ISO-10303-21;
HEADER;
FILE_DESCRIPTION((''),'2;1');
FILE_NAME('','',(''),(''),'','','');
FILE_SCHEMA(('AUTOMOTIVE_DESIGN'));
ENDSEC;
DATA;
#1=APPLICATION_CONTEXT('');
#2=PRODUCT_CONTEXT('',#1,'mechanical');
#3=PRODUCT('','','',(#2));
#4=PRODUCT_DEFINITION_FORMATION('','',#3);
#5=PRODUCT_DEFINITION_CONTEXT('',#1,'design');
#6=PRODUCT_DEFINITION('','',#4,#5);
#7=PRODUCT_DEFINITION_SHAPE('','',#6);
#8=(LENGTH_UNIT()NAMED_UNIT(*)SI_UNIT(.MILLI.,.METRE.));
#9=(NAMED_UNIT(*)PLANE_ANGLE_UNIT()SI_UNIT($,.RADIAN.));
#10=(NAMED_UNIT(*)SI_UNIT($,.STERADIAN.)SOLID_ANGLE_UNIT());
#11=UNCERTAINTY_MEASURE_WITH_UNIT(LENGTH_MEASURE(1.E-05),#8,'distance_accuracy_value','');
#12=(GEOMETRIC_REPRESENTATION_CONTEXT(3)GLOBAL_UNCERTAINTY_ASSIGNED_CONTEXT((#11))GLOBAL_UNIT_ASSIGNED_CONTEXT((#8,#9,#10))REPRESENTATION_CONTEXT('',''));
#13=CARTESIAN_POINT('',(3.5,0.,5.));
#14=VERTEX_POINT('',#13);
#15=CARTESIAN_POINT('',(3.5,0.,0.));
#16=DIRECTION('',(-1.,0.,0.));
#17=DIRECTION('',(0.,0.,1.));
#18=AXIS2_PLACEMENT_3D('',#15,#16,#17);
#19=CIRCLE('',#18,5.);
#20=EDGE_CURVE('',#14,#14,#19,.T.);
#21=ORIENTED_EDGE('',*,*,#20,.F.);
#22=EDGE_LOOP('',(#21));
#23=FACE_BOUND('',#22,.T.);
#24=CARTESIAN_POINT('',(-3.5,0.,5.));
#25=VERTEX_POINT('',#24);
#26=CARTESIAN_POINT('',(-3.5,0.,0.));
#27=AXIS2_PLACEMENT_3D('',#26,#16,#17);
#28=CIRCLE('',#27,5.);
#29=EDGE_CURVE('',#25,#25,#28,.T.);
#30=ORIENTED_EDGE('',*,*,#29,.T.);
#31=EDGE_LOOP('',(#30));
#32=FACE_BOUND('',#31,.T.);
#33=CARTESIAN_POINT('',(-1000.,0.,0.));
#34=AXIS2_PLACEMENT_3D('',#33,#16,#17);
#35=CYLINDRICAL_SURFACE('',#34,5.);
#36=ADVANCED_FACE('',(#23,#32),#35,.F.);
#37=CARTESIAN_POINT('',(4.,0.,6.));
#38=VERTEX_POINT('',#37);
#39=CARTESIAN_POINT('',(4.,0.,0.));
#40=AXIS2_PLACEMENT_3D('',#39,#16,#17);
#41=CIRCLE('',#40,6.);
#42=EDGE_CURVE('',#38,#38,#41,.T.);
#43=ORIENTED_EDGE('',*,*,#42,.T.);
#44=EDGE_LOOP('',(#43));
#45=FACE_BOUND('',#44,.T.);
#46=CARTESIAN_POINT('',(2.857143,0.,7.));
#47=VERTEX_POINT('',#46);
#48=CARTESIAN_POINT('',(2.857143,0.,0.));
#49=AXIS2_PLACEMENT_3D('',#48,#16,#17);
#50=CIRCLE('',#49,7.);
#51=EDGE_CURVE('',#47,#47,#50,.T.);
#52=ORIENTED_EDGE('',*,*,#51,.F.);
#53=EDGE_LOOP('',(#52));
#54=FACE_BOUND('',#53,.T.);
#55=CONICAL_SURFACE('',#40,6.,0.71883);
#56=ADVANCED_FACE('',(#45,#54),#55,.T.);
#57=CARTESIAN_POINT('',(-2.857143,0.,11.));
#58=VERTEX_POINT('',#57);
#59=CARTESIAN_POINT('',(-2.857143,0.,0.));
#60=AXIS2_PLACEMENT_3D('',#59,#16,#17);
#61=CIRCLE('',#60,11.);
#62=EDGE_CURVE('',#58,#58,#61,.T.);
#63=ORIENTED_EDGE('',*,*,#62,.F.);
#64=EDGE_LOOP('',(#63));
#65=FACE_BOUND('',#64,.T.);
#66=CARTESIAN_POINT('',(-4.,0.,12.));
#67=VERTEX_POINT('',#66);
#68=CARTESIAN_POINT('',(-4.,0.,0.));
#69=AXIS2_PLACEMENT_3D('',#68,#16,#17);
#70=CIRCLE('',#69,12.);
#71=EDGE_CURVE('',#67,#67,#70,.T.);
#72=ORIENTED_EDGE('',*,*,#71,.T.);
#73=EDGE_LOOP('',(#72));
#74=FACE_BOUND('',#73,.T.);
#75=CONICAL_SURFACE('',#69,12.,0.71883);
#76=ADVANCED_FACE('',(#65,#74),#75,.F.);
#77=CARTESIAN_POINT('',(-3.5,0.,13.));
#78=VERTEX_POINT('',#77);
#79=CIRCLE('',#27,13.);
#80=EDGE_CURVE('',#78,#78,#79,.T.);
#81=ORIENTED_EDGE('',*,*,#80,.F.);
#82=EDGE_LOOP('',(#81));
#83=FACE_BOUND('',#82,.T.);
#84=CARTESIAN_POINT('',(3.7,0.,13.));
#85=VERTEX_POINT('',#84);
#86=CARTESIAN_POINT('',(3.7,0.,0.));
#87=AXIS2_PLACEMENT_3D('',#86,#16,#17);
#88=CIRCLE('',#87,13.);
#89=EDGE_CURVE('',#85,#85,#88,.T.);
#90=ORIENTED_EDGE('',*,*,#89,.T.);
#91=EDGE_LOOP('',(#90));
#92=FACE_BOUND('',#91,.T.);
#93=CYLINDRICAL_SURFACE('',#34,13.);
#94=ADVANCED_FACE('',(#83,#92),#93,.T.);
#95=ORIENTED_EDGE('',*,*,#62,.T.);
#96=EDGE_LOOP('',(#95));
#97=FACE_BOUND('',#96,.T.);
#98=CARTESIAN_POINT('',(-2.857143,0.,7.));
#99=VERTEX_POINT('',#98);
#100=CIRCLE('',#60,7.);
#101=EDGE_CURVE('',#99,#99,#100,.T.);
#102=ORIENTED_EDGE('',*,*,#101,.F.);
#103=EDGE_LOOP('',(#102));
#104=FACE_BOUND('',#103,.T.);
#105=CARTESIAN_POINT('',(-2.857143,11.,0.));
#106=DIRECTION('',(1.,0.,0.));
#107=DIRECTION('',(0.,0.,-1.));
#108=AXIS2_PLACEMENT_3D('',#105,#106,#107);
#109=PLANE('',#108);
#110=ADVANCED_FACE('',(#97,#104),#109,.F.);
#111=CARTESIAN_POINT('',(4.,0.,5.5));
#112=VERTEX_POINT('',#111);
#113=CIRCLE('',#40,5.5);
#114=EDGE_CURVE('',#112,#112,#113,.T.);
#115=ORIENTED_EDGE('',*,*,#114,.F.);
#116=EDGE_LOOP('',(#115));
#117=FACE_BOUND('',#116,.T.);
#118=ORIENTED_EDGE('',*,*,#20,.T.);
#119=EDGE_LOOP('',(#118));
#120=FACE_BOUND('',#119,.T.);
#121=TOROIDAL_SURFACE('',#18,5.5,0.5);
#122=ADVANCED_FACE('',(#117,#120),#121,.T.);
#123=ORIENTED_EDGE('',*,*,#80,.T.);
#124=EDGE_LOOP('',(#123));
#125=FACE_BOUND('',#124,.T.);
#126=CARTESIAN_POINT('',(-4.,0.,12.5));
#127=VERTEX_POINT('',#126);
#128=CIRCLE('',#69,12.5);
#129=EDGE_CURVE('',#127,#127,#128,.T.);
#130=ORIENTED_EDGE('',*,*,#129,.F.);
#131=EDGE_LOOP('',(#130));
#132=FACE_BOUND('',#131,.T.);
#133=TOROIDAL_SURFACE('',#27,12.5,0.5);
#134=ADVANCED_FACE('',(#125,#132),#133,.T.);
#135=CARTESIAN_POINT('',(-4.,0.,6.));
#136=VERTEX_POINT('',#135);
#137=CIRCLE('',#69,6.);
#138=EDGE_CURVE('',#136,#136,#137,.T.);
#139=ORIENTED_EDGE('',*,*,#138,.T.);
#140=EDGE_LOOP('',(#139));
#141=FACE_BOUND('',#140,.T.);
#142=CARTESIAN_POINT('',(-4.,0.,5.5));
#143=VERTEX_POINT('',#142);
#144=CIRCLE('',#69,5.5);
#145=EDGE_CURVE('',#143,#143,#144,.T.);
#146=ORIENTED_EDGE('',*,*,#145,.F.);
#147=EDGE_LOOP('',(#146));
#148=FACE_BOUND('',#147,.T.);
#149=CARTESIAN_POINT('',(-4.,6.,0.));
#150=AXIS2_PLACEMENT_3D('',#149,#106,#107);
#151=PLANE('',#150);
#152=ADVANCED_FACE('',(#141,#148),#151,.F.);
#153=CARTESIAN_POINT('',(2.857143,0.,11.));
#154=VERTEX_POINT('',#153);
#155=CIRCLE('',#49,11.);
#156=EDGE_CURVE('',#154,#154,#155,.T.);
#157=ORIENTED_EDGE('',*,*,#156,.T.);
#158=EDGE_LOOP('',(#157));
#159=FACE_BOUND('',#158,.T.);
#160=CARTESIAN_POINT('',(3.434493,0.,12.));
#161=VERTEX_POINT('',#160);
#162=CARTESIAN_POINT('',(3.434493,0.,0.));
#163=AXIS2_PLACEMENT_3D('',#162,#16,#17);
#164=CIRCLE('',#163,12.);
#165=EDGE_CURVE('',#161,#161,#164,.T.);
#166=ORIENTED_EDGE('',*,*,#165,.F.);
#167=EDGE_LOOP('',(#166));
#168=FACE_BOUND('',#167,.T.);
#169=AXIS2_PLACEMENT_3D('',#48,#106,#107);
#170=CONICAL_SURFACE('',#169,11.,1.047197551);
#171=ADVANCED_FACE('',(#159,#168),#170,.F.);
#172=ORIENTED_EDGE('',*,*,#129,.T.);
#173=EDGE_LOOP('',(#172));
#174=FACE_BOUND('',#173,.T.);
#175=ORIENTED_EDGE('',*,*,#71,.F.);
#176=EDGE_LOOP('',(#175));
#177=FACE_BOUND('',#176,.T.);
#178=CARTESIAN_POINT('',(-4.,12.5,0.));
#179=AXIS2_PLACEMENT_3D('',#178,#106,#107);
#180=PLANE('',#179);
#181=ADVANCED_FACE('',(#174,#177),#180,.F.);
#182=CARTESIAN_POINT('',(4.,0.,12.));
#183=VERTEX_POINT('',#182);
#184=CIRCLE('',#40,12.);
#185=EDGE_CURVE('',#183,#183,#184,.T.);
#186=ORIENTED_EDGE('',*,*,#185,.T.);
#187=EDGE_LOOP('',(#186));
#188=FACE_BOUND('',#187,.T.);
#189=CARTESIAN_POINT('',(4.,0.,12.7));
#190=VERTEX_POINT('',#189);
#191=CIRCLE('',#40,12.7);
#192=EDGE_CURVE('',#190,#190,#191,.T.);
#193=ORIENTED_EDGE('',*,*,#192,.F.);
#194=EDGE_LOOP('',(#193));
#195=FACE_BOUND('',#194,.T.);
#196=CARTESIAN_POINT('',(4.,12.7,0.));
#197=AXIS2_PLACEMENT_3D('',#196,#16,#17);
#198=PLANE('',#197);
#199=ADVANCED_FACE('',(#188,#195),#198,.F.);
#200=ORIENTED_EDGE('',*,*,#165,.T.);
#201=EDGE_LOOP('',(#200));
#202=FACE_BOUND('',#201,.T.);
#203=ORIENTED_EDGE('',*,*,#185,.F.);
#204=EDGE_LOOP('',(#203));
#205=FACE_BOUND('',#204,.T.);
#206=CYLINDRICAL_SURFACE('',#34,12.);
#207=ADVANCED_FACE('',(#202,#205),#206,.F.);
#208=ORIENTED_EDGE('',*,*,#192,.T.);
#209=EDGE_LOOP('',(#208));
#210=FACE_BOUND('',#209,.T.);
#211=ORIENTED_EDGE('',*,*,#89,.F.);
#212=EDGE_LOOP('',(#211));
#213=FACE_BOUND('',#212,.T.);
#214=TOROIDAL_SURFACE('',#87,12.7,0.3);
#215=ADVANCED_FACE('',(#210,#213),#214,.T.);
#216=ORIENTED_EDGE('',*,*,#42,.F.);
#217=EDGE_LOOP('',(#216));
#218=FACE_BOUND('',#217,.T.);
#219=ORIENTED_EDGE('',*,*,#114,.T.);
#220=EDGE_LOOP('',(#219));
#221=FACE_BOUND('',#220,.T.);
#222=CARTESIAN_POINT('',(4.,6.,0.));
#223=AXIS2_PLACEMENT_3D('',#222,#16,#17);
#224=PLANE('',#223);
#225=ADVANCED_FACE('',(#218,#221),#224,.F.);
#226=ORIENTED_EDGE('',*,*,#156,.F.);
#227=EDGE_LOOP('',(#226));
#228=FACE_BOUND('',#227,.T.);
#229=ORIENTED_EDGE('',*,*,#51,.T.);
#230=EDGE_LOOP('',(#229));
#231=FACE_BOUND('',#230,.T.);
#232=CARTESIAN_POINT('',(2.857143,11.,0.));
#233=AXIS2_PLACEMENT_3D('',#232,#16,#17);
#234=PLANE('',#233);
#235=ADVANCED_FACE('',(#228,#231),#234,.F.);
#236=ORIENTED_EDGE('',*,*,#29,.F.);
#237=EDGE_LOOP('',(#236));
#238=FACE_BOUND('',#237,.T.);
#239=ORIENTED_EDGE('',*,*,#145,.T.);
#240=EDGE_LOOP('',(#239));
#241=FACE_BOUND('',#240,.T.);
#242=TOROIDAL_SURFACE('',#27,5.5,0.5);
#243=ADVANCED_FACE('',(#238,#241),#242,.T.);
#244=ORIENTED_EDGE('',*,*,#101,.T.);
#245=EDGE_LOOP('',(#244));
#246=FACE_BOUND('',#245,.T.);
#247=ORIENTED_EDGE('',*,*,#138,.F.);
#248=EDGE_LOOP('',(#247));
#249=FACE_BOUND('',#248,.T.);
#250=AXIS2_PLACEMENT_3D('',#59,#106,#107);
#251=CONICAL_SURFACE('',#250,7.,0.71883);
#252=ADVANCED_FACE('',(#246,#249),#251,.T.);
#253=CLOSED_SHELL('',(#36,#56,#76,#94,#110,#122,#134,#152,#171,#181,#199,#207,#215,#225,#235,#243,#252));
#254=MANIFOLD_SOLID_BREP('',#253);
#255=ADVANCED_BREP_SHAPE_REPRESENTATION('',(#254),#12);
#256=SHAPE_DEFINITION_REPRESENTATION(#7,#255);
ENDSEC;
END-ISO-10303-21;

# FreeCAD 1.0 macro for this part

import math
import FreeCAD as App
import Part
import Sketcher
Q = App.Units.Quantity

doc = App.newDocument("Part")
params = doc.addObject("Spreadsheet::Sheet", "Params")
for row, (alias, value) in enumerate([
    ("sketch1_radius", "0.5 mm"),
    ("sketch1_radius2", "0.3 mm"),
    ("sketch1_width", "7 mm"),
    ("sketch1_height", "4 mm"),
    ("sketch1_height2", "0.5 mm"),
    ("revolution_angle", "360 deg"),
], start=1):
    params.set(f"A{row}", alias)
    params.set(f"B{row}", "=" + value)
    params.setAlias(f"B{row}", alias)

body = doc.addObject("PartDesign::Body", "Body")

# Sketch on XY plane
sketch1 = doc.addObject("Sketcher::SketchObject", "Sketch")
body.addObject(sketch1)
sketch1.AttachmentSupport = (doc.XY_Plane, [""])
sketch1.MapMode = "FlatFace"
sketch1.addGeometry([
    Part.LineSegment(App.Vector(3.7, 13, 0), App.Vector(-3.5, 13, 0)),  # 0
    Part.ArcOfCircle(Part.Circle(App.Vector(-3.5, 12.5, 0), App.Vector(0, 0, 1), 0.5), math.radians(90), math.radians(180)),  # 1
    Part.LineSegment(App.Vector(-4, 12.5, 0), App.Vector(-4, 12, 0)),  # 2
    Part.LineSegment(App.Vector(-4, 12, 0), App.Vector(-2.857143, 11, 0)),  # 3
    Part.LineSegment(App.Vector(-2.857143, 11, 0), App.Vector(-2.857143, 7, 0)),  # 4
    Part.LineSegment(App.Vector(-2.857143, 7, 0), App.Vector(-4, 6, 0)),  # 5
    Part.LineSegment(App.Vector(-4, 6, 0), App.Vector(-4, 5.5, 0)),  # 6
    Part.ArcOfCircle(Part.Circle(App.Vector(-3.5, 5.5, 0), App.Vector(0, 0, 1), 0.5), math.radians(180), math.radians(270)),  # 7
    Part.LineSegment(App.Vector(-3.5, 5, 0), App.Vector(3.5, 5, 0)),  # 8
    Part.ArcOfCircle(Part.Circle(App.Vector(3.5, 5.5, 0), App.Vector(0, 0, 1), 0.5), math.radians(-90), math.radians(0)),  # 9
    Part.LineSegment(App.Vector(4, 5.5, 0), App.Vector(4, 6, 0)),  # 10
    Part.LineSegment(App.Vector(4, 6, 0), App.Vector(2.857143, 7, 0)),  # 11
    Part.LineSegment(App.Vector(2.857143, 7, 0), App.Vector(2.857143, 11, 0)),  # 12
    Part.LineSegment(App.Vector(2.857143, 11, 0), App.Vector(3.434493, 12, 0)),  # 13
    Part.LineSegment(App.Vector(3.434493, 12, 0), App.Vector(4, 12, 0)),  # 14
    Part.LineSegment(App.Vector(4, 12, 0), App.Vector(4, 12.7, 0)),  # 15
    Part.ArcOfCircle(Part.Circle(App.Vector(3.7, 12.7, 0), App.Vector(0, 0, 1), 0.3), math.radians(0), math.radians(90)),  # 16
], False)
sketch1.addConstraint([
    Sketcher.Constraint("Tangent", 0, 2, 1, 1),
    Sketcher.Constraint("Tangent", 1, 2, 2, 1),
    Sketcher.Constraint("Coincident", 2, 2, 3, 1),
    Sketcher.Constraint("Coincident", 3, 2, 4, 1),
    Sketcher.Constraint("Coincident", 4, 2, 5, 1),
    Sketcher.Constraint("Coincident", 5, 2, 6, 1),
    Sketcher.Constraint("Tangent", 6, 2, 7, 1),
    Sketcher.Constraint("Tangent", 7, 2, 8, 1),
    Sketcher.Constraint("Tangent", 8, 2, 9, 1),
    Sketcher.Constraint("Tangent", 9, 2, 10, 1),
    Sketcher.Constraint("Coincident", 10, 2, 11, 1),
    Sketcher.Constraint("Coincident", 11, 2, 12, 1),
    Sketcher.Constraint("Coincident", 12, 2, 13, 1),
    Sketcher.Constraint("Coincident", 13, 2, 14, 1),
    Sketcher.Constraint("Coincident", 14, 2, 15, 1),
    Sketcher.Constraint("Tangent", 15, 2, 16, 1),
    Sketcher.Constraint("Tangent", 16, 2, 0, 1),
    Sketcher.Constraint("Horizontal", 0),
    Sketcher.Constraint("Vertical", 2),
    Sketcher.Constraint("Vertical", 4),
    Sketcher.Constraint("Vertical", 6),
    Sketcher.Constraint("Horizontal", 8),
    Sketcher.Constraint("Vertical", 10),
    Sketcher.Constraint("Vertical", 12),
    Sketcher.Constraint("Horizontal", 14),
    Sketcher.Constraint("Vertical", 15),
    Sketcher.Constraint("Equal", 1, 7),
    Sketcher.Constraint("Equal", 7, 9),
    Sketcher.Constraint("Symmetric", 5, 2, 10, 2, -2),
    Sketcher.Constraint("Symmetric", 4, 2, 11, 2, -2),
    Sketcher.Constraint("Symmetric", 2, 2, 14, 2, -2),
    Sketcher.Constraint("Parallel", 3, 11),
    Sketcher.Constraint("Horizontal", 3, 2, 12, 2),
    Sketcher.Constraint("Vertical", 1, 3, 7, 3),
    Sketcher.Constraint("Equal", 2, 6),
    Sketcher.Constraint("Radius", 1, 0.5),
    Sketcher.Constraint("Radius", 16, 0.3),
    Sketcher.Constraint("DistanceX", 8, 1, 8, 2, 7.0),
    Sketcher.Constraint("DistanceY", 4, 2, 4, 1, 4.0),
    Sketcher.Constraint("Angle", 13, Q("60 deg")),
    Sketcher.Constraint("DistanceY", 2, 2, 2, 1, 0.5),
    Sketcher.Constraint("DistanceY", -1, 1, 0, 2, 13.0),
    Sketcher.Constraint("DistanceY", -1, 1, 3, 2, 11.0),
    Sketcher.Constraint("DistanceX", 14, 1, 14, 2, 0.565507),
])
sketch1.setExpression("Constraints[35]", "Params.sketch1_radius")
sketch1.setExpression("Constraints[36]", "Params.sketch1_radius2")
sketch1.setExpression("Constraints[37]", "Params.sketch1_width")
sketch1.setExpression("Constraints[38]", "Params.sketch1_height")
sketch1.setExpression("Constraints[40]", "Params.sketch1_height2")
revolution = doc.addObject("PartDesign::Revolution", "Revolution")
body.addObject(revolution)
revolution.Profile = sketch1
revolution.ReferenceAxis = (sketch1, ["H_Axis"])
revolution.setExpression("Angle", "Params.revolution_angle")

doc.recompute()
